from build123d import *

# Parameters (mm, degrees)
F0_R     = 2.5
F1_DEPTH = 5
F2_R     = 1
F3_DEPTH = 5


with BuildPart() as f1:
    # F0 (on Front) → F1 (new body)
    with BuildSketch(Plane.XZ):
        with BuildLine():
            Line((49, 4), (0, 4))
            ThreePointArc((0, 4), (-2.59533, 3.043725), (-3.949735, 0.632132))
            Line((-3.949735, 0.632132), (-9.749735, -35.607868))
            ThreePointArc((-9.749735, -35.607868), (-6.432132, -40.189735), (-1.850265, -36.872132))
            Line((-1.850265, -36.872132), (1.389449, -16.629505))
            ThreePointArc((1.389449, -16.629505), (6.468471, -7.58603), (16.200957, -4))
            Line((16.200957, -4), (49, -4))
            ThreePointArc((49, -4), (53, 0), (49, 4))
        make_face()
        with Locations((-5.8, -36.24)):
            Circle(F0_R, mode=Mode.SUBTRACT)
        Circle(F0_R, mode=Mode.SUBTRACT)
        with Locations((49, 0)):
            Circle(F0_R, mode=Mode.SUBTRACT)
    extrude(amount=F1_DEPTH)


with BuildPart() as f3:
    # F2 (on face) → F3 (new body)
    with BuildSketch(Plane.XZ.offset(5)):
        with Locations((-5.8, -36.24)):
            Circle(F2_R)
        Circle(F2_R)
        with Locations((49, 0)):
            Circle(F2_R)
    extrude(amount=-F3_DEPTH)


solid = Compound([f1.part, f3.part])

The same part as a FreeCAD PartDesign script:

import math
import FreeCAD as App
import Part
import Sketcher
Q = App.Units.Quantity

doc = App.newDocument("Part")
params = doc.addObject("Spreadsheet::Sheet", "Params")
for row, (alias, value) in enumerate([
    ("sketch1_diameter", "5 mm"),
    ("sketch1_radius", "3.999999 mm"),
    ("sketch1_radius2", "15.000002 mm"),
    ("sketch1_width", "49 mm"),
    ("pad1_length", "5 mm"),
    ("sketch2_diameter", "2 mm"),
    ("pad2_length", "5 mm"),
], start=1):
    params.set(f"A{row}", alias)
    params.set(f"B{row}", "=" + value)
    params.setAlias(f"B{row}", alias)

body = doc.addObject("PartDesign::Body", "Body")

sketch1 = doc.addObject("Sketcher::SketchObject", "Sketch")
body.addObject(sketch1)
sketch1.AttachmentSupport = (doc.XZ_Plane, [""])
sketch1.MapMode = "FlatFace"
sketch1.addGeometry([
    Part.LineSegment(App.Vector(49, 4, 0), App.Vector(0, 4, 0)),
    Part.ArcOfCircle(Part.Circle(App.Vector(0, 0, 0), App.Vector(0, 0, 1), 4), math.radians(90), math.radians(171)),
    Part.LineSegment(App.Vector(-3.9, 0.6, 0), App.Vector(-9.7, -35.6, 0)),
    Part.ArcOfCircle(Part.Circle(App.Vector(-5.8, -36.2, 0), App.Vector(0, 0, 1), 4), math.radians(171), math.radians(351)),
    Part.LineSegment(App.Vector(-1.9, -36.9, 0), App.Vector(1.4, -16.6, 0)),
    Part.ArcOfCircle(Part.Circle(App.Vector(16.2, -19, 0), App.Vector(0, 0, 1), 15), math.radians(90), math.radians(171)),
    Part.LineSegment(App.Vector(16.2, -4, 0), App.Vector(49, -4, 0)),
    Part.ArcOfCircle(Part.Circle(App.Vector(49, 0, 0), App.Vector(0, 0, 1), 4), math.radians(-90), math.radians(90)),
    Part.Circle(App.Vector(-5.8, -36.2, 0), App.Vector(0, 0, 1), 2.5),
    Part.Circle(App.Vector(0, 0, 0), App.Vector(0, 0, 1), 2.5),
    Part.Circle(App.Vector(49, 0, 0), App.Vector(0, 0, 1), 2.5),
], False)
sketch1.addConstraint([
    Sketcher.Constraint("Tangent", 0, 2, 1, 1),
    Sketcher.Constraint("Tangent", 1, 2, 2, 1),
    Sketcher.Constraint("Tangent", 2, 2, 3, 1),
    Sketcher.Constraint("Tangent", 3, 2, 4, 1),
    Sketcher.Constraint("Tangent", 4, 2, 5, 2),
    Sketcher.Constraint("Tangent", 5, 1, 6, 1),
    Sketcher.Constraint("Tangent", 6, 2, 7, 1),
    Sketcher.Constraint("Tangent", 7, 2, 0, 1),
    Sketcher.Constraint("Horizontal", 0),
    Sketcher.Constraint("Horizontal", 6),
    Sketcher.Constraint("Coincident", 1, 3, -1, 1),
    Sketcher.Constraint("Coincident", 9, 3, -1, 1),
    Sketcher.Constraint("Coincident", 8, 3, 3, 3),
    Sketcher.Constraint("Coincident", 10, 3, 7, 3),
    Sketcher.Constraint("Equal", 1, 3),
    Sketcher.Constraint("Equal", 3, 7),
    Sketcher.Constraint("Equal", 8, 9),
    Sketcher.Constraint("Equal", 9, 10),
    Sketcher.Constraint("Parallel", 2, 4),
    Sketcher.Constraint("Diameter", 8, Q("5 mm")),
    Sketcher.Constraint("Radius", 1, Q("3.999999 mm")),
    Sketcher.Constraint("Radius", 5, Q("15.000002 mm")),
    Sketcher.Constraint("DistanceX", 0, 2, 0, 1, Q("49 mm")),
    Sketcher.Constraint("DistanceX", 3, 3, -1, 1, Q("5.8 mm")),
    Sketcher.Constraint("DistanceY", 3, 3, -1, 1, Q("36.24 mm")),
])
sketch1.setExpression("Constraints[19]", "Params.sketch1_diameter")
sketch1.setExpression("Constraints[20]", "Params.sketch1_radius")
sketch1.setExpression("Constraints[21]", "Params.sketch1_radius2")
sketch1.setExpression("Constraints[22]", "Params.sketch1_width")
pad1 = doc.addObject("PartDesign::Pad", "Pad")
body.addObject(pad1)
pad1.Profile = sketch1
pad1.setExpression("Length", "Params.pad1_length")
body2 = doc.addObject("PartDesign::Body", "Body001")
body2.AllowCompound = True

sketch2 = doc.addObject("Sketcher::SketchObject", "Sketch001")
body2.addObject(sketch2)
sketch2.AttachmentSupport = (doc.getObject("XZ_Plane001"), [""])
sketch2.MapMode = "FlatFace"
sketch2.AttachmentOffset = App.Placement(App.Vector(0, 0, 5), App.Rotation())
sketch2.addGeometry([
    Part.Circle(App.Vector(-5.8, -36.2, 0), App.Vector(0, 0, 1), 1),
    Part.Circle(App.Vector(0, 0, 0), App.Vector(0, 0, 1), 1),
    Part.Circle(App.Vector(49, 0, 0), App.Vector(0, 0, 1), 1),
], False)
sketch2.addConstraint([
    Sketcher.Constraint("Coincident", 1, 3, -1, 1),
    Sketcher.Constraint("Equal", 0, 1),
    Sketcher.Constraint("Equal", 1, 2),
    Sketcher.Constraint("PointOnObject", 2, 3, -1),
    Sketcher.Constraint("Diameter", 0, Q("2 mm")),
    Sketcher.Constraint("DistanceX", -1, 1, 2, 3, Q("49 mm")),
    Sketcher.Constraint("DistanceX", 0, 3, -1, 1, Q("5.8 mm")),
    Sketcher.Constraint("DistanceY", 0, 3, -1, 1, Q("36.24 mm")),
])
sketch2.setExpression("Constraints[4]", "Params.sketch2_diameter")
pad2 = doc.addObject("PartDesign::Pad", "Pad001")
body2.addObject(pad2)
pad2.Profile = sketch2
pad2.setExpression("Length", "Params.pad2_length")
pad2.Reversed = True

doc.recompute()
